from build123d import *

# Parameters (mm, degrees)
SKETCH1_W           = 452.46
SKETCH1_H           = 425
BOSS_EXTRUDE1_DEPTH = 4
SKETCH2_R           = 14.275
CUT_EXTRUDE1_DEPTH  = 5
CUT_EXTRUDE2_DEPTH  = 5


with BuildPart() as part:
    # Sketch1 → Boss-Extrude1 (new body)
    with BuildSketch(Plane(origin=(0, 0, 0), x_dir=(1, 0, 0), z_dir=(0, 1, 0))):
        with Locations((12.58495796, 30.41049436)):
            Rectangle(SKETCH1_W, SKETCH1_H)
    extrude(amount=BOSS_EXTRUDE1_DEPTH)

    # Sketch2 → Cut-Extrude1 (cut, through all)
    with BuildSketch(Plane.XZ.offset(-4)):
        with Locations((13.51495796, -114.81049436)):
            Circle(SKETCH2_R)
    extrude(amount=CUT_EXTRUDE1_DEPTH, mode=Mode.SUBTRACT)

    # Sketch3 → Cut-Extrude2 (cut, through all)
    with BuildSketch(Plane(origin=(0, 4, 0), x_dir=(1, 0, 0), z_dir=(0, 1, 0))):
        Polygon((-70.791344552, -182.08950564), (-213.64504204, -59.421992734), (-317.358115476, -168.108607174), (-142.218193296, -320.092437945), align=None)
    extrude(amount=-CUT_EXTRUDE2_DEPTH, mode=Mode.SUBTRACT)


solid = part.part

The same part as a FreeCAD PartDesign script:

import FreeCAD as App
import Part
import Sketcher


def add_polygon(sketch, points):
    """Adds a closed chain of lines whose ends are joined by coincident constraints."""
    first, n = sketch.GeometryCount, len(points)
    for a, b in zip(points, points[1:] + points[:1]):
        sketch.addGeometry(Part.LineSegment(App.Vector(*a, 0), App.Vector(*b, 0)), False)
    for i in range(n):
        sketch.addConstraint(Sketcher.Constraint("Coincident", first + i, 2, first + (i + 1) % n, 1))

doc = App.newDocument("Part")
body = doc.addObject("PartDesign::Body", "Body")

sketch1 = body.newObject("Sketcher::SketchObject", "Sketch")
sketch1.AttachmentSupport = (doc.getObject("XZ_Plane"), [""])
sketch1.MapMode = "FlatFace"
add_polygon(sketch1, [(-214, -243), (-214, 182), (239, 182), (239, -243)])
sketch1.addConstraint(Sketcher.Constraint("Vertical", 0))
sketch1.addConstraint(Sketcher.Constraint("Horizontal", 1))
sketch1.addConstraint(Sketcher.Constraint("Vertical", 2))
sketch1.addConstraint(Sketcher.Constraint("Horizontal", 3))
sketch1.addConstraint(Sketcher.Constraint("DistanceY", 0, 1, 0, 2, 425.0))
sketch1.addConstraint(Sketcher.Constraint("DistanceX", 1, 1, 1, 2, 452.46))
sketch1.addConstraint(Sketcher.Constraint("DistanceX", 0, 2, -1, 1, 213.645042))
sketch1.addConstraint(Sketcher.Constraint("DistanceY", -1, 1, 0, 2, 182.089506))
pad1 = body.newObject("PartDesign::Pad", "Pad")
pad1.Profile = sketch1
pad1.Length = 4
pad1.Reversed = True

sketch2 = body.newObject("Sketcher::SketchObject", "Sketch001")
sketch2.AttachmentSupport = (doc.getObject("XZ_Plane"), [""])
sketch2.MapMode = "FlatFace"
sketch2.AttachmentOffset = App.Placement(App.Vector(0, 0, -4), App.Rotation())
sketch2.addGeometry(Part.Circle(App.Vector(14, -115, 0), App.Vector(0, 0, 1), 14), False)
sketch2.addConstraint(Sketcher.Constraint("Diameter", 0, 28.55))
sketch2.addConstraint(Sketcher.Constraint("DistanceX", -1, 1, 0, 3, 13.514958))
sketch2.addConstraint(Sketcher.Constraint("DistanceY", 0, 3, -1, 1, 114.810494))
pocket1 = body.newObject("PartDesign::Pocket", "Pocket")
pocket1.Profile = sketch2
pocket1.Type = "ThroughAll"
pocket1.Reversed = True

sketch3 = body.newObject("Sketcher::SketchObject", "Sketch002")
sketch3.AttachmentSupport = (doc.getObject("XZ_Plane"), [""])
sketch3.MapMode = "FlatFace"
sketch3.AttachmentOffset = App.Placement(App.Vector(0, 0, -4), App.Rotation())
add_polygon(sketch3, [(-71, 182), (-214, 59), (-317, 168), (-142, 320)])
sketch3.addConstraint(Sketcher.Constraint("DistanceY", 1, 2, 3, 2, 13.980898))
sketch3.addConstraint(Sketcher.Constraint("Distance", 1, 150.230429))
sketch3.addConstraint(Sketcher.Constraint("DistanceY", 1, 2, 2, 2, 151.983831))
sketch3.addConstraint(Sketcher.Constraint("DistanceX", 0, 2, 2, 2, 71.426849))
sketch3.addConstraint(Sketcher.Constraint("DistanceX", 2, 2, 3, 2, 71.426849))
sketch3.addConstraint(Sketcher.Constraint("DistanceX", 1, 2, 3, 2, 246.566771))
sketch3.addConstraint(Sketcher.Constraint("DistanceX", 0, 2, -1, 1, 213.645042))
sketch3.addConstraint(Sketcher.Constraint("DistanceY", -1, 1, 0, 2, 59.421993))
pocket2 = body.newObject("PartDesign::Pocket", "Pocket001")
pocket2.Profile = sketch3
pocket2.Type = "ThroughAll"
pocket2.Reversed = True

doc.recompute()
